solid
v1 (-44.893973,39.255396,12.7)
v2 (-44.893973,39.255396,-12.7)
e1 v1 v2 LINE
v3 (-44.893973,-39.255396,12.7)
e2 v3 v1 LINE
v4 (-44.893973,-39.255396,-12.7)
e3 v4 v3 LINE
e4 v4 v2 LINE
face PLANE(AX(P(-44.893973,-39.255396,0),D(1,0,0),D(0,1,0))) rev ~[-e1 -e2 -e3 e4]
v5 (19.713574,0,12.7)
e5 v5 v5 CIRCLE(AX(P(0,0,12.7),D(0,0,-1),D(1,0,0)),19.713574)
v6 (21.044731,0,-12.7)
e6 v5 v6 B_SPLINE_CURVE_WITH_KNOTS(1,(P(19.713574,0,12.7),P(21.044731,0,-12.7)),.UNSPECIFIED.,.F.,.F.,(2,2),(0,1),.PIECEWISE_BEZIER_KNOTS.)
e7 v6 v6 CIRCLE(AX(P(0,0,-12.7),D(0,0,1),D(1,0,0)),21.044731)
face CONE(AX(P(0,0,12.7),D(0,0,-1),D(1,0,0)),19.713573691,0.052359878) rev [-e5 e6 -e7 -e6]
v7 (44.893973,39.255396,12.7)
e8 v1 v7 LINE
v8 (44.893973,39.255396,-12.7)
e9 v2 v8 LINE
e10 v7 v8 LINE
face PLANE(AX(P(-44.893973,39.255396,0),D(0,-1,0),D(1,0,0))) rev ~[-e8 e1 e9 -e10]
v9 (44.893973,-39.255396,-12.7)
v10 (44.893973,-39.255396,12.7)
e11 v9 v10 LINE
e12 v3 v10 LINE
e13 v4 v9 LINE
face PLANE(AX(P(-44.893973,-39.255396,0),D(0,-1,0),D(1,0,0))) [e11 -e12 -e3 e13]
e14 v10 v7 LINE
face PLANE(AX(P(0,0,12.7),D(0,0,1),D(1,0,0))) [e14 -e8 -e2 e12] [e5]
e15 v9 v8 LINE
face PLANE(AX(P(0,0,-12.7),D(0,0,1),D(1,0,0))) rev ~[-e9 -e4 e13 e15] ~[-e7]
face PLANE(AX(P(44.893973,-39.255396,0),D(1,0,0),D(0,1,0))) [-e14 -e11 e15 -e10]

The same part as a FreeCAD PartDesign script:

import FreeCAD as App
import Part
import Sketcher
from FreeCAD import Vector
Q = App.Units.Quantity

doc = App.newDocument("Part")
body = doc.addObject("PartDesign::Body", "Body")

sketch1 = doc.addObject("Sketcher::SketchObject", "Sketch")
body.addObject(sketch1)
sketch1.AttachmentSupport = (doc.XY_Plane, [""])
sketch1.MapMode = "FlatFace"
sketch1.addGeometry([
    Part.LineSegment(Vector(-45, 39, 0), Vector(-45, -39, 0)),
    Part.LineSegment(Vector(-45, -39, 0), Vector(45, -39, 0)),
    Part.LineSegment(Vector(45, -39, 0), Vector(45, 39, 0)),
    Part.LineSegment(Vector(45, 39, 0), Vector(-45, 39, 0)),
], False)
sketch1.addConstraint([
    Sketcher.Constraint("Coincident", 0, 2, 1, 1),
    Sketcher.Constraint("Coincident", 1, 2, 2, 1),
    Sketcher.Constraint("Coincident", 2, 2, 3, 1),
    Sketcher.Constraint("Coincident", 3, 2, 0, 1),
    Sketcher.Constraint("Vertical", 0),
    Sketcher.Constraint("Horizontal", 1),
    Sketcher.Constraint("Vertical", 2),
    Sketcher.Constraint("Horizontal", 3),
    Sketcher.Constraint("Symmetric", 0, 2, 2, 2, -1, 1),
    Sketcher.Constraint("DistanceY", 0, 2, 0, 1, Q("78.510791 mm")),
    Sketcher.Constraint("DistanceX", 1, 1, 1, 2, Q("89.787945 mm")),
])
pad1 = doc.addObject("PartDesign::Pad", "Pad")
body.addObject(pad1)
pad1.Profile = sketch1
pad1.Length = Q("1 in")
pad1.Midplane = True

sketch2 = doc.addObject("Sketcher::SketchObject", "Sketch001")
body.addObject(sketch2)
sketch2.AttachmentSupport = (doc.XY_Plane, [""])
sketch2.MapMode = "FlatFace"
sketch2.AttachmentOffset = App.Placement(Vector(0, 0, 0.5 * 25.4), App.Rotation())
sketch2.addGeometry(Part.Circle(Vector(0, 0, 0), Vector(0, 0, 1), 20), False)
sketch2.addConstraint([
    Sketcher.Constraint("Coincident", 0, 3, -1, 1),
    Sketcher.Constraint("Diameter", 0, Q("39.427147 mm")),
])
pocket1 = doc.addObject("PartDesign::Pocket", "Pocket")
body.addObject(pocket1)
pocket1.Profile = sketch2
pocket1.Length = Q("1 in")
pocket1.TaperAngle = 3
pocket2 = doc.addObject("PartDesign::Pocket", "Pocket001")
body.addObject(pocket2)
pocket2.Profile = sketch2
pocket2.Length = Q("1 in")
pocket2.Reversed = True

doc.recompute()
